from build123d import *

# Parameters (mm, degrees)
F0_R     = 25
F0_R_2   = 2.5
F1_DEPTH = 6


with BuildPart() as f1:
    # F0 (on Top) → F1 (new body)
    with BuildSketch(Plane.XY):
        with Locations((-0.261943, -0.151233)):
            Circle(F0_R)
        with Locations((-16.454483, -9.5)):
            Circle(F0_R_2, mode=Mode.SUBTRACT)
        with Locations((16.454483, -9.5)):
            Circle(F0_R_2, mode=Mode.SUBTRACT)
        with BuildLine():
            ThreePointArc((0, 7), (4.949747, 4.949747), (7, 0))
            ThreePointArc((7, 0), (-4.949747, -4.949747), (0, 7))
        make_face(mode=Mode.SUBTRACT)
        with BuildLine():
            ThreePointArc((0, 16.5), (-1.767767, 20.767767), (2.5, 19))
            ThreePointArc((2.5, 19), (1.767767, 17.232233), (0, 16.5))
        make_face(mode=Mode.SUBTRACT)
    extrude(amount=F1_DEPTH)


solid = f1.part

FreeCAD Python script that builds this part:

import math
import FreeCAD as App
import Part
import Sketcher

V = App.Vector
Q = App.Units.Quantity

doc = App.newDocument("Part")
body = doc.addObject("PartDesign::Body", "Body")

sketch1 = body.newObject("Sketcher::SketchObject", "Sketch")
sketch1.AttachmentSupport = (doc.getObject("XY_Plane"), [""])
sketch1.MapMode = "FlatFace"
sketch1.addGeometry([
    Part.Circle(V(-0.3, -0.2, 0), V(0, 0, 1), 25),
    Part.Circle(V(-16.5, -9.5, 0), V(0, 0, 1), 2.5),
    Part.Circle(V(16.5, -9.5, 0), V(0, 0, 1), 2.5),
    Part.ArcOfCircle(Part.Circle(V(0, 0, 0), V(0, 0, 1), 7), math.radians(90), math.radians(360)),
    Part.ArcOfCircle(Part.Circle(V(0, 0, 0), V(0, 0, 1), 7), math.radians(0), math.radians(90)),
    Part.ArcOfCircle(Part.Circle(V(0, 19, 0), V(0, 0, 1), 2.5), math.radians(-90), math.radians(0)),
    Part.ArcOfCircle(Part.Circle(V(0, 19, 0), V(0, 0, 1), 2.5), math.radians(0), math.radians(270)),
], False)
sketch1.addConstraint([
    Sketcher.Constraint("Tangent", 3, 1, 4, 2),
    Sketcher.Constraint("Coincident", 4, 1, 3, 2),
    Sketcher.Constraint("Tangent", 5, 1, 6, 2),
    Sketcher.Constraint("Coincident", 6, 1, 5, 2),
    Sketcher.Constraint("Coincident", 3, 3, -1, 1),
    Sketcher.Constraint("Equal", 1, 2),
    Sketcher.Constraint("Equal", 2, 5),
    Sketcher.Constraint("Symmetric", 1, 3, 2, 3, -2),
    Sketcher.Constraint("PointOnObject", 5, 3, -2),
    Sketcher.Constraint("PointOnObject", 3, 1, -2),
    Sketcher.Constraint("PointOnObject", 4, 1, -1),
    Sketcher.Constraint("PointOnObject", 5, 1, -2),
    Sketcher.Constraint("Horizontal", 5, 3, 6, 1),
    Sketcher.Constraint("Diameter", 0, Q("50 mm")),
    Sketcher.Constraint("Diameter", 1, Q("5 mm")),
    Sketcher.Constraint("Radius", 3, Q("7 mm")),
    Sketcher.Constraint("DistanceY", -1, 1, 5, 3, Q("19 mm")),
    Sketcher.Constraint("DistanceY", 1, 3, -1, 1, Q("9.5 mm")),
    Sketcher.Constraint("DistanceX", 1, 3, 0, 3, Q("16.19254 mm")),
    Sketcher.Constraint("DistanceX", 0, 3, 4, 3, Q("0.261941 mm")),
    Sketcher.Constraint("DistanceY", 0, 3, 4, 3, Q("0.151231 mm")),
])
pad1 = body.newObject("PartDesign::Pad", "Pad")
pad1.Profile = sketch1
pad1.Length = 6

doc.recompute()
